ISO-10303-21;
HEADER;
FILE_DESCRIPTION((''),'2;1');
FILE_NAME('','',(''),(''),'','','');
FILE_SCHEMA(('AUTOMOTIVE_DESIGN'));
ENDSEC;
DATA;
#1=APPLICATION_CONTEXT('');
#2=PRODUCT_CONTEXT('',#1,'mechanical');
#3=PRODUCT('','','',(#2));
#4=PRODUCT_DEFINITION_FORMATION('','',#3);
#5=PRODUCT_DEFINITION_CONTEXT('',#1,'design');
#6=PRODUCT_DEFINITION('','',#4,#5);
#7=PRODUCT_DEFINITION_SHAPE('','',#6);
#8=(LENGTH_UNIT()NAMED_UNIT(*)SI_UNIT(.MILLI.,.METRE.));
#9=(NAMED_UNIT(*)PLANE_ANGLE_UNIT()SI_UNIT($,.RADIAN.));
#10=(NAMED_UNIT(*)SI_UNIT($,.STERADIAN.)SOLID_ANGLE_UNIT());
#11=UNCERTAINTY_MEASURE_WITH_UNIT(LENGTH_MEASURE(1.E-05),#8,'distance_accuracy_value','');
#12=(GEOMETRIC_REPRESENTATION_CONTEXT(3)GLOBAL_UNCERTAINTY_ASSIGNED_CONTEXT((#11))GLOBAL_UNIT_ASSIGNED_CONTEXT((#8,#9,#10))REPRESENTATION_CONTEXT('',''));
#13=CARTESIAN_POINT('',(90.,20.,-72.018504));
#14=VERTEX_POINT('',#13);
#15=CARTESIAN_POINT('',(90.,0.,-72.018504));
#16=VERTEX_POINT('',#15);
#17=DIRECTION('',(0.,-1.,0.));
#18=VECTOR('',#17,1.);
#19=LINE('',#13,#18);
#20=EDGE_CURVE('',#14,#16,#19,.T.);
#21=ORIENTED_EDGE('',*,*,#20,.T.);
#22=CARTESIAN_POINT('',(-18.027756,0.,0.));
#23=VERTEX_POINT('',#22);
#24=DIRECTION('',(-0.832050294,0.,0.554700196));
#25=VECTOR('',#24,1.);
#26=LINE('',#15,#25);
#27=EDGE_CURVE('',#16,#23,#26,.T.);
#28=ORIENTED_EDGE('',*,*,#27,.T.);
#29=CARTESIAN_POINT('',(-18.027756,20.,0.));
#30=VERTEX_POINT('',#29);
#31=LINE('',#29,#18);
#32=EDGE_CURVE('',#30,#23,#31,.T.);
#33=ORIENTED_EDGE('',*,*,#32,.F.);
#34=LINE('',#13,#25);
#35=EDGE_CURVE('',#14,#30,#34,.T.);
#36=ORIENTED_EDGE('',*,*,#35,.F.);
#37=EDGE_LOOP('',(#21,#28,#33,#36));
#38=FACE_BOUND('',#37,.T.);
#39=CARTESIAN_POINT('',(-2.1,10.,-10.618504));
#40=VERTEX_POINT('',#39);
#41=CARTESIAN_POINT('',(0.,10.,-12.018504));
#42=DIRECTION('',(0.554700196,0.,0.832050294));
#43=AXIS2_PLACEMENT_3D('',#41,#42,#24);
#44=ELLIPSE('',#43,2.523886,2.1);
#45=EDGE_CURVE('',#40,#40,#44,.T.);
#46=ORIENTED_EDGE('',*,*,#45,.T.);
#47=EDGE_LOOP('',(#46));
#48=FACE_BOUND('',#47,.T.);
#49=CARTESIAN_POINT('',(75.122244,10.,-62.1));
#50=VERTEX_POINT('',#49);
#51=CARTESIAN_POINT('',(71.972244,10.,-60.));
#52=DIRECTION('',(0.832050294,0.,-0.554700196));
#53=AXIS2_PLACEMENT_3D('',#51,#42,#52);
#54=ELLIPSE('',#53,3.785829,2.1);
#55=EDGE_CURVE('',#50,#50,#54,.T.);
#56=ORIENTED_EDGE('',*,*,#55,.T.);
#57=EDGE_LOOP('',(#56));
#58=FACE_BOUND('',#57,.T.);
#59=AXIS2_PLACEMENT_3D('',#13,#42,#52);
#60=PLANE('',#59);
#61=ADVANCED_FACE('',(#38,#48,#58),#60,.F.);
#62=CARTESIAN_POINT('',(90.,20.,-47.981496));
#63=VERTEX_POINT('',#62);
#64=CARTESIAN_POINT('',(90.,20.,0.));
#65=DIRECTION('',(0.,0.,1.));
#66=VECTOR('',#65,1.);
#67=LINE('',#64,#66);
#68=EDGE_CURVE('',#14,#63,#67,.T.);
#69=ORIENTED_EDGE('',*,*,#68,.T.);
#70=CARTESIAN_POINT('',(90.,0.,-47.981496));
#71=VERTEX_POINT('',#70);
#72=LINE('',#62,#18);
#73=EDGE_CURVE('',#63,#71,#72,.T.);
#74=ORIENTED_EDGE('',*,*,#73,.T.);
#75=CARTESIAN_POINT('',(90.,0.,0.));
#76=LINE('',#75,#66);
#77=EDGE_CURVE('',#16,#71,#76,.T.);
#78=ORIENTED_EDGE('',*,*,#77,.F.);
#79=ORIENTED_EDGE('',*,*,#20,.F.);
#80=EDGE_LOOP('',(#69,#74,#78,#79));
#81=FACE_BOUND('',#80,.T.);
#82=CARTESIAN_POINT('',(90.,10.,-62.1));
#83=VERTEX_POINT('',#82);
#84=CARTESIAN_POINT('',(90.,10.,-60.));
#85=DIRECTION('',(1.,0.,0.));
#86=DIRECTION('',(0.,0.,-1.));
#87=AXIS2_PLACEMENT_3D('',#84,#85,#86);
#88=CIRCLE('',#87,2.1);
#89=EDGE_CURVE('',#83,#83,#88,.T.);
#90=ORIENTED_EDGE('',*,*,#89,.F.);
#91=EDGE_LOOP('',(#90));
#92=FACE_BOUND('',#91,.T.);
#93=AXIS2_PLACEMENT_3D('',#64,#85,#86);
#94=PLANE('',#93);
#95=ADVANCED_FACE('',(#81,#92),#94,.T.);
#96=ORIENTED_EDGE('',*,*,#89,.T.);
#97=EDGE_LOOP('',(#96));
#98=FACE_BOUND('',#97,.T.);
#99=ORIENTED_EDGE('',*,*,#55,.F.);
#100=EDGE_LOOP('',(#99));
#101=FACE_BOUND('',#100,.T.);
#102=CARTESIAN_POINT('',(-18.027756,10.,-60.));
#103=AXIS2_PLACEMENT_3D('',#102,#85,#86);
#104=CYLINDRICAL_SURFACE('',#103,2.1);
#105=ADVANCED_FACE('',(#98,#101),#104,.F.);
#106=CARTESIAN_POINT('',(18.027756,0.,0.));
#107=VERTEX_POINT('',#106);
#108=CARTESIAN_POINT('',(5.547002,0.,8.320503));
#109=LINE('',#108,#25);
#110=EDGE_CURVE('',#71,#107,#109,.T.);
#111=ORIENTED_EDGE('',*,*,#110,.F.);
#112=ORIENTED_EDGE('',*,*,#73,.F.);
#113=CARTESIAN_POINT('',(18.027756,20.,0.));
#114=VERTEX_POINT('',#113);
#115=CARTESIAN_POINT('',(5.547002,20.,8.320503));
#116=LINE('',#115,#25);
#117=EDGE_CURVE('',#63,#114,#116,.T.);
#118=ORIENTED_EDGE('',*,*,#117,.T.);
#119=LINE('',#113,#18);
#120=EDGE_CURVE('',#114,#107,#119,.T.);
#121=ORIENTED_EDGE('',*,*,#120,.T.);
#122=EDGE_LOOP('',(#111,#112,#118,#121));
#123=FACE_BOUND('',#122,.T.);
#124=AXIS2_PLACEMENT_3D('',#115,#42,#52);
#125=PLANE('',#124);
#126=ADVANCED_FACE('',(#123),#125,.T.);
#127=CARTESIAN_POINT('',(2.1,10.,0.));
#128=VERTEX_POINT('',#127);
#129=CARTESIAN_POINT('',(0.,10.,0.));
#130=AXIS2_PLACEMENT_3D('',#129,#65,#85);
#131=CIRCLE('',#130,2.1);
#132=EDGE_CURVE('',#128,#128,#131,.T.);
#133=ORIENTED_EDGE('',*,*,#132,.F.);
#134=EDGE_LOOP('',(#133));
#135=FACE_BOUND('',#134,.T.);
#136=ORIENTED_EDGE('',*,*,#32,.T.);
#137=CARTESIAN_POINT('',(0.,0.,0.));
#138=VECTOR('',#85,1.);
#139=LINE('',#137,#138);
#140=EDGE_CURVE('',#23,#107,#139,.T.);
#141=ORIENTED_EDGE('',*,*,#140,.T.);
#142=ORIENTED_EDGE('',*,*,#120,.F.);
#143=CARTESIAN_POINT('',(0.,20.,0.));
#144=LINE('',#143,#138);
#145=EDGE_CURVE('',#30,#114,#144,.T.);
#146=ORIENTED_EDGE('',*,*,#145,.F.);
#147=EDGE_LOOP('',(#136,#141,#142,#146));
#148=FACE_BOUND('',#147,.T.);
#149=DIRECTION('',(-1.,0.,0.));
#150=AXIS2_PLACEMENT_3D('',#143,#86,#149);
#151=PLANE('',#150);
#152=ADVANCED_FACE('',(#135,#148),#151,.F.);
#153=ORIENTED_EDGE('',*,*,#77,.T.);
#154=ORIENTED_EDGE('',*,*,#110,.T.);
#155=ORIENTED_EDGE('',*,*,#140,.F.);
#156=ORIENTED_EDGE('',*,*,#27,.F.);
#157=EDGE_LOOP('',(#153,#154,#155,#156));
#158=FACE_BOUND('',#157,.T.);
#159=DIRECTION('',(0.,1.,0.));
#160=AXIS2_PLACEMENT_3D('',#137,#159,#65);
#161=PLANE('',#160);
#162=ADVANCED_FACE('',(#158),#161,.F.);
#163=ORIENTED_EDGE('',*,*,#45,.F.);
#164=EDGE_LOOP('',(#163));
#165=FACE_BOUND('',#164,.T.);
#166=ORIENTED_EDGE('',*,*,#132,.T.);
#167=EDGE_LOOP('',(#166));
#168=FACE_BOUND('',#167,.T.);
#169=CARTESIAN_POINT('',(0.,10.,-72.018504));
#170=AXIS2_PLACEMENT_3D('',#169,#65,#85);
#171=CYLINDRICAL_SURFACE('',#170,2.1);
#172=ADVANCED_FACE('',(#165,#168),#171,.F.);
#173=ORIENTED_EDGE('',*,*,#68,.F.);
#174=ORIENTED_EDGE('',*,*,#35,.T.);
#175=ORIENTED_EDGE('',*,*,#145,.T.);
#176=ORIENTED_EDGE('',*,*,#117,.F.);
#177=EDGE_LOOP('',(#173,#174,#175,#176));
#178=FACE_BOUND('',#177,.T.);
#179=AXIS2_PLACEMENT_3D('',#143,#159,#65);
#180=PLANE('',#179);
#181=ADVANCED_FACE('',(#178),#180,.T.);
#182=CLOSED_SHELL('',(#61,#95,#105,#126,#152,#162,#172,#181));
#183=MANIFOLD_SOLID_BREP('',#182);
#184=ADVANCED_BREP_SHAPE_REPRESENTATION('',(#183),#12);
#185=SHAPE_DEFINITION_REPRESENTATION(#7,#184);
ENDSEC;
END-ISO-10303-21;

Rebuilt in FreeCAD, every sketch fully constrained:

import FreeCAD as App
import Part
import Sketcher
from FreeCAD import Vector

doc = App.newDocument("Part")
body = doc.addObject("PartDesign::Body", "Body")

# Sketch on XZ plane
sketch1 = body.newObject("Sketcher::SketchObject", "Sketch")
sketch1.AttachmentSupport = (doc.getObject("XZ_Plane"), [""])
sketch1.MapMode = "FlatFace"
sketch1.addGeometry([
    Part.LineSegment(Vector(90, -72.018504, 0), Vector(-18.027756, 0, 0)),
    Part.LineSegment(Vector(-18.027756, 0, 0), Vector(18.027756, 0, 0)),
    Part.LineSegment(Vector(18.027756, 0, 0), Vector(90, -47.981496, 0)),
    Part.LineSegment(Vector(90, -47.981496, 0), Vector(90, -72.018504, 0)),
], False)
sketch1.addConstraint([
    Sketcher.Constraint("Coincident", 0, 2, 1, 1),
    Sketcher.Constraint("Coincident", 1, 2, 2, 1),
    Sketcher.Constraint("Coincident", 2, 2, 3, 1),
    Sketcher.Constraint("Coincident", 3, 2, 0, 1),
    Sketcher.Constraint("Horizontal", 1),
    Sketcher.Constraint("Vertical", 3),
    Sketcher.Constraint("Symmetric", 0, 2, 1, 2, -1, 1),
    Sketcher.Constraint("Parallel", 0, 2),
    Sketcher.Constraint("DistanceX", -1, 1, 2, 2, 90.0),
    Sketcher.Constraint("DistanceY", 3, 2, 3, 1, 24.037009),
    Sketcher.Constraint("Distance", 2, 86.499872),
])
pad1 = body.newObject("PartDesign::Pad", "Pad")
pad1.Profile = sketch1
pad1.Length = 20
pad1.Reversed = True

# Sketch on YZ plane
sketch2 = body.newObject("Sketcher::SketchObject", "Sketch001")
sketch2.AttachmentSupport = (doc.getObject("YZ_Plane"), [""])
sketch2.MapMode = "FlatFace"
sketch2.AttachmentOffset = App.Placement(Vector(0, 0, 90), App.Rotation())
sketch2.addGeometry(Part.Circle(Vector(10, -60, 0), Vector(0, 0, 1), 2.1), False)
sketch2.addConstraint([
    Sketcher.Constraint("Diameter", 0, 4.2),
    Sketcher.Constraint("DistanceX", -1, 1, 0, 3, 10.0),
    Sketcher.Constraint("DistanceY", 0, 3, -1, 1, 60.0),
])
pocket1 = body.newObject("PartDesign::Pocket", "Pocket")
pocket1.Profile = sketch2
pocket1.Type = "ThroughAll"

# Sketch on XY plane
sketch3 = body.newObject("Sketcher::SketchObject", "Sketch002")
sketch3.AttachmentSupport = (doc.getObject("XY_Plane"), [""])
sketch3.MapMode = "FlatFace"
sketch3.addGeometry(Part.Circle(Vector(0, 10, 0), Vector(0, 0, 1), 2.1), False)
sketch3.addConstraint([
    Sketcher.Constraint("PointOnObject", 0, 3, -2),
    Sketcher.Constraint("Diameter", 0, 4.2),
    Sketcher.Constraint("DistanceY", -1, 1, 0, 3, 10.0),
])
pocket2 = body.newObject("PartDesign::Pocket", "Pocket001")
pocket2.Profile = sketch3
pocket2.Type = "ThroughAll"

doc.recompute()
